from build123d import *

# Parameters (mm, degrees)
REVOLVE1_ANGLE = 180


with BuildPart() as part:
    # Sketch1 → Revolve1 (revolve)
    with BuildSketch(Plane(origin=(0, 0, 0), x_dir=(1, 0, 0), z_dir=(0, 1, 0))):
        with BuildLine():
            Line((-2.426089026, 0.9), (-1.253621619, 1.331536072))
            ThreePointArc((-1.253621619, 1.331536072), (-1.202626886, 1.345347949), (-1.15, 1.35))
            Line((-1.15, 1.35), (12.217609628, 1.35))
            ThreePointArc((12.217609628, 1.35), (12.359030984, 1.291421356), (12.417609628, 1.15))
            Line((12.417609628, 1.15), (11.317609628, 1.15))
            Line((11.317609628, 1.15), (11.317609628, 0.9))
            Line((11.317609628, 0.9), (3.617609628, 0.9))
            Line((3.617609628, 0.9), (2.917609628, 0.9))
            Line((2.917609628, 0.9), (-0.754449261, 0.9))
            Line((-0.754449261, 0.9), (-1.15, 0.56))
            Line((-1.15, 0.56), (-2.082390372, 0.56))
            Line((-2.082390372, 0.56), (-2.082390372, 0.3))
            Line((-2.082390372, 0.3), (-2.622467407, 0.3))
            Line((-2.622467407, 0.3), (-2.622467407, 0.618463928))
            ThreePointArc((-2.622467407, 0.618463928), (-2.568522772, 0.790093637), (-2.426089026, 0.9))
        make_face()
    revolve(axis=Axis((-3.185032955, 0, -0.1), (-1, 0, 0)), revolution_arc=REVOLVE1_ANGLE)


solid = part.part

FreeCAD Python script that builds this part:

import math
import FreeCAD as App
import Part
import Sketcher

doc = App.newDocument("Part")
body = doc.addObject("PartDesign::Body", "Body")

sketch1 = body.newObject("Sketcher::SketchObject", "Sketch")
sketch1.AttachmentSupport = (doc.getObject("XZ_Plane"), [""])
sketch1.MapMode = "FlatFace"
sketch1.addGeometry(Part.LineSegment(App.Vector(-1.25, -1.33, 0), App.Vector(-2.43, -0.9, 0)), False)
sketch1.addGeometry(Part.ArcOfCircle(Part.Circle(App.Vector(-2.32, -0.62, 0), App.Vector(0, 0, 1), 0.3), math.radians(-180), math.radians(-110)), False)
sketch1.addGeometry(Part.LineSegment(App.Vector(-2.62, -0.62, 0), App.Vector(-2.62, -0.3, 0)), False)
sketch1.addGeometry(Part.LineSegment(App.Vector(-2.62, -0.3, 0), App.Vector(-2.08, -0.3, 0)), False)
sketch1.addGeometry(Part.LineSegment(App.Vector(-2.08, -0.3, 0), App.Vector(-2.08, -0.56, 0)), False)
sketch1.addGeometry(Part.LineSegment(App.Vector(-2.08, -0.56, 0), App.Vector(-1.15, -0.56, 0)), False)
sketch1.addGeometry(Part.LineSegment(App.Vector(-1.15, -0.56, 0), App.Vector(-0.75, -0.9, 0)), False)
sketch1.addGeometry(Part.LineSegment(App.Vector(-0.75, -0.9, 0), App.Vector(11.32, -0.9, 0)), False)
sketch1.addGeometry(Part.LineSegment(App.Vector(11.32, -0.9, 0), App.Vector(11.32, -1.15, 0)), False)
sketch1.addGeometry(Part.LineSegment(App.Vector(11.32, -1.15, 0), App.Vector(12.42, -1.15, 0)), False)
sketch1.addGeometry(Part.ArcOfCircle(Part.Circle(App.Vector(12.22, -1.15, 0), App.Vector(0, 0, 1), 0.2), math.radians(-90), math.radians(0)), False)
sketch1.addGeometry(Part.LineSegment(App.Vector(12.22, -1.35, 0), App.Vector(-1.15, -1.35, 0)), False)
sketch1.addGeometry(Part.ArcOfCircle(Part.Circle(App.Vector(-1.15, -1.05, 0), App.Vector(0, 0, 1), 0.3), math.radians(-110), math.radians(-90)), False)
sketch1.addGeometry(Part.LineSegment(App.Vector(12.42, -0.1, 0), App.Vector(-2.62, -0.1, 0)), True)
sketch1.addConstraint(Sketcher.Constraint("Tangent", 0, 2, 1, 2))
sketch1.addConstraint(Sketcher.Constraint("Tangent", 1, 1, 2, 1))
sketch1.addConstraint(Sketcher.Constraint("Coincident", 2, 2, 3, 1))
sketch1.addConstraint(Sketcher.Constraint("Coincident", 3, 2, 4, 1))
sketch1.addConstraint(Sketcher.Constraint("Coincident", 4, 2, 5, 1))
sketch1.addConstraint(Sketcher.Constraint("Coincident", 5, 2, 6, 1))
sketch1.addConstraint(Sketcher.Constraint("Coincident", 6, 2, 7, 1))
sketch1.addConstraint(Sketcher.Constraint("Coincident", 7, 2, 8, 1))
sketch1.addConstraint(Sketcher.Constraint("Coincident", 8, 2, 9, 1))
sketch1.addConstraint(Sketcher.Constraint("Coincident", 9, 2, 10, 2))
sketch1.addConstraint(Sketcher.Constraint("Tangent", 10, 1, 11, 1))
sketch1.addConstraint(Sketcher.Constraint("Tangent", 11, 2, 12, 2))
sketch1.addConstraint(Sketcher.Constraint("Tangent", 12, 1, 0, 1))
sketch1.addConstraint(Sketcher.Constraint("Vertical", 2))
sketch1.addConstraint(Sketcher.Constraint("Horizontal", 3))
sketch1.addConstraint(Sketcher.Constraint("Vertical", 4))
sketch1.addConstraint(Sketcher.Constraint("Horizontal", 5))
sketch1.addConstraint(Sketcher.Constraint("Horizontal", 7))
sketch1.addConstraint(Sketcher.Constraint("Vertical", 8))
sketch1.addConstraint(Sketcher.Constraint("Horizontal", 9))
sketch1.addConstraint(Sketcher.Constraint("Horizontal", 11))
sketch1.addConstraint(Sketcher.Constraint("Horizontal", 13))
sketch1.addConstraint(Sketcher.Constraint("Equal", 1, 12))
sketch1.addConstraint(Sketcher.Constraint("Horizontal", 0, 2, 6, 2))
sketch1.addConstraint(Sketcher.Constraint("Horizontal", 10, 3, 8, 2))
sketch1.addConstraint(Sketcher.Constraint("Vertical", 12, 3, 5, 2))
sketch1.addConstraint(Sketcher.Constraint("Vertical", 9, 2, 13, 1))
sketch1.addConstraint(Sketcher.Constraint("Vertical", 2, 2, 13, 2))
sketch1.addConstraint(Sketcher.Constraint("Radius", 1, 0.3))
sketch1.addConstraint(Sketcher.Constraint("Radius", 10, 0.2))
sketch1.addConstraint(Sketcher.Constraint("DistanceX", 9, 1, 9, 2, 1.1))
sketch1.addConstraint(Sketcher.Constraint("DistanceY", 4, 2, 4, 1, 0.26))
sketch1.addConstraint(Sketcher.Constraint("DistanceY", 8, 2, 8, 1, 0.25))
sketch1.addConstraint(Sketcher.Constraint("DistanceY", 0, 2, -1, 1, 0.9))
sketch1.addConstraint(Sketcher.Constraint("DistanceY", 2, 2, -1, 1, 0.3))
sketch1.addConstraint(Sketcher.Constraint("DistanceY", 13, 1, -1, 1, 0.1))
sketch1.addConstraint(Sketcher.Constraint("DistanceX", 4, 2, 7, 2, 13.4))
sketch1.addConstraint(Sketcher.Constraint("DistanceX", 12, 3, -1, 1, 1.15))
sketch1.addConstraint(Sketcher.Constraint("DistanceX", 5, 1, 5, 2, 0.93239))
sketch1.addConstraint(Sketcher.Constraint("DistanceX", 7, 1, 7, 2, 12.072059))
sketch1.addConstraint(Sketcher.Constraint("DistanceX", 0, 2, 10, 3, 14.643699))
revolution = body.newObject("PartDesign::Revolution", "Revolution")
revolution.Profile = sketch1
revolution.ReferenceAxis = (sketch1, ["Axis0"])
revolution.Angle = 180

doc.recompute()
